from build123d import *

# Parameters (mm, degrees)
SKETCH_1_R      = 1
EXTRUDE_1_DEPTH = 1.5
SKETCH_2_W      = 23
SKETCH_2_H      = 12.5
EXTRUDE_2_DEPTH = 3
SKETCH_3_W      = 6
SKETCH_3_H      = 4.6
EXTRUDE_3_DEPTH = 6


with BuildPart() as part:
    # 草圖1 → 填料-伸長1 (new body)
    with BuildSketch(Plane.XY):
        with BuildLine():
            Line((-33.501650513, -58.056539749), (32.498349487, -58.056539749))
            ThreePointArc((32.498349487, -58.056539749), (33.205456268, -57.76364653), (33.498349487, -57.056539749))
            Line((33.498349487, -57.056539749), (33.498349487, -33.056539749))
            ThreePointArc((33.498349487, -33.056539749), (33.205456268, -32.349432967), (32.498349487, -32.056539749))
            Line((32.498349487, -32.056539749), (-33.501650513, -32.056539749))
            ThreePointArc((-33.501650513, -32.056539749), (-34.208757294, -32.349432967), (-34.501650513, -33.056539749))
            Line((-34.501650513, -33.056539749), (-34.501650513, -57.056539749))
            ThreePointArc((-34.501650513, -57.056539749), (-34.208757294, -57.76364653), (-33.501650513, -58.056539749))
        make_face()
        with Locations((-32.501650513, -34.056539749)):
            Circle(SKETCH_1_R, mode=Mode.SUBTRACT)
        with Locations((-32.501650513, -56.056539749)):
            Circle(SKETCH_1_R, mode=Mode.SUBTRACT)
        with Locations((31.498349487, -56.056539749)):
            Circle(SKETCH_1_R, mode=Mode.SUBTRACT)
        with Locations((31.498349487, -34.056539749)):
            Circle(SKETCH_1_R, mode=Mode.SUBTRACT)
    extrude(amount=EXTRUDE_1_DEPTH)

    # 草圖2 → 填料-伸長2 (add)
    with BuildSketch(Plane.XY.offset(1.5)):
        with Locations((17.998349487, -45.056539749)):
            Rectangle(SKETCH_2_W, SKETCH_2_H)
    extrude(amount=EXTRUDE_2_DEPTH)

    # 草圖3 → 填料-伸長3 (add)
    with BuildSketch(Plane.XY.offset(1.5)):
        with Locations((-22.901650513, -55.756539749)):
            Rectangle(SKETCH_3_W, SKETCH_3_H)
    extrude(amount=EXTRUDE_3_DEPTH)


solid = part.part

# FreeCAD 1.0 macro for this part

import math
import FreeCAD as App
import Part
import Sketcher


def add_polygon(sketch, points):
    """Adds a closed chain of lines whose ends are joined by coincident constraints."""
    first, n = sketch.GeometryCount, len(points)
    for a, b in zip(points, points[1:] + points[:1]):
        sketch.addGeometry(Part.LineSegment(App.Vector(*a, 0), App.Vector(*b, 0)), False)
    for i in range(n):
        sketch.addConstraint(Sketcher.Constraint("Coincident", first + i, 2, first + (i + 1) % n, 1))

doc = App.newDocument("Part")
body = doc.addObject("PartDesign::Body", "Body")

# Sketch on XY plane
sketch1 = doc.addObject("Sketcher::SketchObject", "Sketch")
body.addObject(sketch1)
sketch1.AttachmentSupport = (doc.XY_Plane, [""])
sketch1.MapMode = "FlatFace"
sketch1.addGeometry([
    Part.LineSegment(App.Vector(-33.5, -58.1, 0), App.Vector(32.5, -58.1, 0)),  # 0
    Part.ArcOfCircle(Part.Circle(App.Vector(32.5, -57.1, 0), App.Vector(0, 0, 1), 1), math.radians(-90), math.radians(0)),  # 1
    Part.LineSegment(App.Vector(33.5, -57.1, 0), App.Vector(33.5, -33.1, 0)),  # 2
    Part.ArcOfCircle(Part.Circle(App.Vector(32.5, -33.1, 0), App.Vector(0, 0, 1), 1), math.radians(0), math.radians(90)),  # 3
    Part.LineSegment(App.Vector(32.5, -32.1, 0), App.Vector(-33.5, -32.1, 0)),  # 4
    Part.ArcOfCircle(Part.Circle(App.Vector(-33.5, -33.1, 0), App.Vector(0, 0, 1), 1), math.radians(90), math.radians(180)),  # 5
    Part.LineSegment(App.Vector(-34.5, -33.1, 0), App.Vector(-34.5, -57.1, 0)),  # 6
    Part.ArcOfCircle(Part.Circle(App.Vector(-33.5, -57.1, 0), App.Vector(0, 0, 1), 1), math.radians(-180), math.radians(-90)),  # 7
    Part.Circle(App.Vector(-32.5, -56.1, 0), App.Vector(0, 0, 1), 1),  # 8
    Part.Circle(App.Vector(31.5, -56.1, 0), App.Vector(0, 0, 1), 1),  # 9
    Part.Circle(App.Vector(-32.5, -34.1, 0), App.Vector(0, 0, 1), 1),  # 10
    Part.Circle(App.Vector(31.5, -34.1, 0), App.Vector(0, 0, 1), 1),  # 11
], False)
sketch1.addConstraint([
    Sketcher.Constraint("Tangent", 0, 2, 1, 1),
    Sketcher.Constraint("Tangent", 1, 2, 2, 1),
    Sketcher.Constraint("Tangent", 2, 2, 3, 1),
    Sketcher.Constraint("Tangent", 3, 2, 4, 1),
    Sketcher.Constraint("Tangent", 4, 2, 5, 1),
    Sketcher.Constraint("Tangent", 5, 2, 6, 1),
    Sketcher.Constraint("Tangent", 6, 2, 7, 1),
    Sketcher.Constraint("Tangent", 7, 2, 0, 1),
    Sketcher.Constraint("Horizontal", 0),
    Sketcher.Constraint("Vertical", 2),
    Sketcher.Constraint("Horizontal", 4),
    Sketcher.Constraint("Vertical", 6),
    Sketcher.Constraint("Equal", 1, 3),
    Sketcher.Constraint("Equal", 3, 5),
    Sketcher.Constraint("Equal", 5, 7),
    Sketcher.Constraint("Equal", 7, 8),
    Sketcher.Constraint("Equal", 8, 9),
    Sketcher.Constraint("Equal", 9, 10),
    Sketcher.Constraint("Equal", 10, 11),
    Sketcher.Constraint("Horizontal", 8, 3, 9, 3),
    Sketcher.Constraint("Horizontal", 10, 3, 11, 3),
    Sketcher.Constraint("Vertical", 8, 3, 10, 3),
    Sketcher.Constraint("Vertical", 9, 3, 11, 3),
    Sketcher.Constraint("Diameter", 8, 2.0),
    Sketcher.Constraint("DistanceX", 0, 1, 0, 2, 66.0),
    Sketcher.Constraint("DistanceY", 2, 1, 2, 2, 24.0),
    Sketcher.Constraint("DistanceX", 7, 3, 8, 3, 1.0),
    Sketcher.Constraint("DistanceY", 7, 3, 8, 3, 1.0),
    Sketcher.Constraint("DistanceX", 9, 3, 1, 3, 1.0),
    Sketcher.Constraint("DistanceY", 10, 3, 5, 3, 1.0),
    Sketcher.Constraint("DistanceX", -1, 1, 1, 3, 32.498349),
    Sketcher.Constraint("DistanceY", 1, 3, -1, 1, 57.05654),
])
pad1 = doc.addObject("PartDesign::Pad", "Pad")
body.addObject(pad1)
pad1.Profile = sketch1
pad1.Length = 1.5

# Sketch on XY plane
sketch2 = doc.addObject("Sketcher::SketchObject", "Sketch001")
body.addObject(sketch2)
sketch2.AttachmentSupport = (doc.XY_Plane, [""])
sketch2.MapMode = "FlatFace"
sketch2.AttachmentOffset = App.Placement(App.Vector(0, 0, 1.5), App.Rotation())
add_polygon(sketch2, [(6, -39), (6, -51), (29, -51), (29, -39)])  # lines 0-3
sketch2.addConstraint([
    Sketcher.Constraint("Vertical", 0),
    Sketcher.Constraint("Horizontal", 1),
    Sketcher.Constraint("Vertical", 2),
    Sketcher.Constraint("Horizontal", 3),
    Sketcher.Constraint("DistanceX", 1, 1, 1, 2, 23.0),
    Sketcher.Constraint("DistanceY", 0, 2, 0, 1, 12.5),
    Sketcher.Constraint("DistanceX", -1, 1, 0, 2, 6.498349),
    Sketcher.Constraint("DistanceY", 0, 2, -1, 1, 51.30654),
])
pad2 = doc.addObject("PartDesign::Pad", "Pad001")
body.addObject(pad2)
pad2.Profile = sketch2
pad2.Length = 3

# Sketch on XY plane
sketch3 = doc.addObject("Sketcher::SketchObject", "Sketch002")
body.addObject(sketch3)
sketch3.AttachmentSupport = (doc.XY_Plane, [""])
sketch3.MapMode = "FlatFace"
sketch3.AttachmentOffset = App.Placement(App.Vector(0, 0, 1.5), App.Rotation())
add_polygon(sketch3, [(-25.9, -53.5), (-25.9, -58.1), (-19.9, -58.1), (-19.9, -53.5)])  # lines 0-3
sketch3.addConstraint([
    Sketcher.Constraint("Vertical", 0),
    Sketcher.Constraint("Horizontal", 1),
    Sketcher.Constraint("Vertical", 2),
    Sketcher.Constraint("Horizontal", 3),
    Sketcher.Constraint("DistanceX", 1, 1, 1, 2, 6.0),
    Sketcher.Constraint("DistanceY", 0, 2, 0, 1, 4.6),
    Sketcher.Constraint("DistanceX", 0, 2, -1, 1, 25.901651),
    Sketcher.Constraint("DistanceY", 0, 2, -1, 1, 58.05654),
])
pad3 = doc.addObject("PartDesign::Pad", "Pad002")
body.addObject(pad3)
pad3.Profile = sketch3
pad3.Length = 6

doc.recompute()
